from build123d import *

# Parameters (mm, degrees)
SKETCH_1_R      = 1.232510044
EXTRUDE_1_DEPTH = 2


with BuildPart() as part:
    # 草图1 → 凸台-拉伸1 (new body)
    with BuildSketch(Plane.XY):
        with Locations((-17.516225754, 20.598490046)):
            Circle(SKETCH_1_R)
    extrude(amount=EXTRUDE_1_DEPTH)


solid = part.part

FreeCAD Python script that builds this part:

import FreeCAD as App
import Part
import Sketcher

V = App.Vector

doc = App.newDocument("Part")
body = doc.addObject("PartDesign::Body", "Body")

# Sketch on XY plane
sketch1 = body.newObject("Sketcher::SketchObject", "Sketch")
sketch1.AttachmentSupport = (doc.getObject("XY_Plane"), [""])
sketch1.MapMode = "FlatFace"
sketch1.addGeometry(Part.Circle(V(-17.5, 20.6, 0), V(0, 0, 1), 1.2), False)
sketch1.addConstraint([
    Sketcher.Constraint("Diameter", 0, 2.46502),
    Sketcher.Constraint("DistanceY", -1, 1, 0, 3, 20.59849),
    Sketcher.Constraint("DistanceX", 0, 3, -1, 1, 17.516226),
])
pad1 = body.newObject("PartDesign::Pad", "Pad")
pad1.Profile = sketch1
pad1.Length = 2

doc.recompute()
